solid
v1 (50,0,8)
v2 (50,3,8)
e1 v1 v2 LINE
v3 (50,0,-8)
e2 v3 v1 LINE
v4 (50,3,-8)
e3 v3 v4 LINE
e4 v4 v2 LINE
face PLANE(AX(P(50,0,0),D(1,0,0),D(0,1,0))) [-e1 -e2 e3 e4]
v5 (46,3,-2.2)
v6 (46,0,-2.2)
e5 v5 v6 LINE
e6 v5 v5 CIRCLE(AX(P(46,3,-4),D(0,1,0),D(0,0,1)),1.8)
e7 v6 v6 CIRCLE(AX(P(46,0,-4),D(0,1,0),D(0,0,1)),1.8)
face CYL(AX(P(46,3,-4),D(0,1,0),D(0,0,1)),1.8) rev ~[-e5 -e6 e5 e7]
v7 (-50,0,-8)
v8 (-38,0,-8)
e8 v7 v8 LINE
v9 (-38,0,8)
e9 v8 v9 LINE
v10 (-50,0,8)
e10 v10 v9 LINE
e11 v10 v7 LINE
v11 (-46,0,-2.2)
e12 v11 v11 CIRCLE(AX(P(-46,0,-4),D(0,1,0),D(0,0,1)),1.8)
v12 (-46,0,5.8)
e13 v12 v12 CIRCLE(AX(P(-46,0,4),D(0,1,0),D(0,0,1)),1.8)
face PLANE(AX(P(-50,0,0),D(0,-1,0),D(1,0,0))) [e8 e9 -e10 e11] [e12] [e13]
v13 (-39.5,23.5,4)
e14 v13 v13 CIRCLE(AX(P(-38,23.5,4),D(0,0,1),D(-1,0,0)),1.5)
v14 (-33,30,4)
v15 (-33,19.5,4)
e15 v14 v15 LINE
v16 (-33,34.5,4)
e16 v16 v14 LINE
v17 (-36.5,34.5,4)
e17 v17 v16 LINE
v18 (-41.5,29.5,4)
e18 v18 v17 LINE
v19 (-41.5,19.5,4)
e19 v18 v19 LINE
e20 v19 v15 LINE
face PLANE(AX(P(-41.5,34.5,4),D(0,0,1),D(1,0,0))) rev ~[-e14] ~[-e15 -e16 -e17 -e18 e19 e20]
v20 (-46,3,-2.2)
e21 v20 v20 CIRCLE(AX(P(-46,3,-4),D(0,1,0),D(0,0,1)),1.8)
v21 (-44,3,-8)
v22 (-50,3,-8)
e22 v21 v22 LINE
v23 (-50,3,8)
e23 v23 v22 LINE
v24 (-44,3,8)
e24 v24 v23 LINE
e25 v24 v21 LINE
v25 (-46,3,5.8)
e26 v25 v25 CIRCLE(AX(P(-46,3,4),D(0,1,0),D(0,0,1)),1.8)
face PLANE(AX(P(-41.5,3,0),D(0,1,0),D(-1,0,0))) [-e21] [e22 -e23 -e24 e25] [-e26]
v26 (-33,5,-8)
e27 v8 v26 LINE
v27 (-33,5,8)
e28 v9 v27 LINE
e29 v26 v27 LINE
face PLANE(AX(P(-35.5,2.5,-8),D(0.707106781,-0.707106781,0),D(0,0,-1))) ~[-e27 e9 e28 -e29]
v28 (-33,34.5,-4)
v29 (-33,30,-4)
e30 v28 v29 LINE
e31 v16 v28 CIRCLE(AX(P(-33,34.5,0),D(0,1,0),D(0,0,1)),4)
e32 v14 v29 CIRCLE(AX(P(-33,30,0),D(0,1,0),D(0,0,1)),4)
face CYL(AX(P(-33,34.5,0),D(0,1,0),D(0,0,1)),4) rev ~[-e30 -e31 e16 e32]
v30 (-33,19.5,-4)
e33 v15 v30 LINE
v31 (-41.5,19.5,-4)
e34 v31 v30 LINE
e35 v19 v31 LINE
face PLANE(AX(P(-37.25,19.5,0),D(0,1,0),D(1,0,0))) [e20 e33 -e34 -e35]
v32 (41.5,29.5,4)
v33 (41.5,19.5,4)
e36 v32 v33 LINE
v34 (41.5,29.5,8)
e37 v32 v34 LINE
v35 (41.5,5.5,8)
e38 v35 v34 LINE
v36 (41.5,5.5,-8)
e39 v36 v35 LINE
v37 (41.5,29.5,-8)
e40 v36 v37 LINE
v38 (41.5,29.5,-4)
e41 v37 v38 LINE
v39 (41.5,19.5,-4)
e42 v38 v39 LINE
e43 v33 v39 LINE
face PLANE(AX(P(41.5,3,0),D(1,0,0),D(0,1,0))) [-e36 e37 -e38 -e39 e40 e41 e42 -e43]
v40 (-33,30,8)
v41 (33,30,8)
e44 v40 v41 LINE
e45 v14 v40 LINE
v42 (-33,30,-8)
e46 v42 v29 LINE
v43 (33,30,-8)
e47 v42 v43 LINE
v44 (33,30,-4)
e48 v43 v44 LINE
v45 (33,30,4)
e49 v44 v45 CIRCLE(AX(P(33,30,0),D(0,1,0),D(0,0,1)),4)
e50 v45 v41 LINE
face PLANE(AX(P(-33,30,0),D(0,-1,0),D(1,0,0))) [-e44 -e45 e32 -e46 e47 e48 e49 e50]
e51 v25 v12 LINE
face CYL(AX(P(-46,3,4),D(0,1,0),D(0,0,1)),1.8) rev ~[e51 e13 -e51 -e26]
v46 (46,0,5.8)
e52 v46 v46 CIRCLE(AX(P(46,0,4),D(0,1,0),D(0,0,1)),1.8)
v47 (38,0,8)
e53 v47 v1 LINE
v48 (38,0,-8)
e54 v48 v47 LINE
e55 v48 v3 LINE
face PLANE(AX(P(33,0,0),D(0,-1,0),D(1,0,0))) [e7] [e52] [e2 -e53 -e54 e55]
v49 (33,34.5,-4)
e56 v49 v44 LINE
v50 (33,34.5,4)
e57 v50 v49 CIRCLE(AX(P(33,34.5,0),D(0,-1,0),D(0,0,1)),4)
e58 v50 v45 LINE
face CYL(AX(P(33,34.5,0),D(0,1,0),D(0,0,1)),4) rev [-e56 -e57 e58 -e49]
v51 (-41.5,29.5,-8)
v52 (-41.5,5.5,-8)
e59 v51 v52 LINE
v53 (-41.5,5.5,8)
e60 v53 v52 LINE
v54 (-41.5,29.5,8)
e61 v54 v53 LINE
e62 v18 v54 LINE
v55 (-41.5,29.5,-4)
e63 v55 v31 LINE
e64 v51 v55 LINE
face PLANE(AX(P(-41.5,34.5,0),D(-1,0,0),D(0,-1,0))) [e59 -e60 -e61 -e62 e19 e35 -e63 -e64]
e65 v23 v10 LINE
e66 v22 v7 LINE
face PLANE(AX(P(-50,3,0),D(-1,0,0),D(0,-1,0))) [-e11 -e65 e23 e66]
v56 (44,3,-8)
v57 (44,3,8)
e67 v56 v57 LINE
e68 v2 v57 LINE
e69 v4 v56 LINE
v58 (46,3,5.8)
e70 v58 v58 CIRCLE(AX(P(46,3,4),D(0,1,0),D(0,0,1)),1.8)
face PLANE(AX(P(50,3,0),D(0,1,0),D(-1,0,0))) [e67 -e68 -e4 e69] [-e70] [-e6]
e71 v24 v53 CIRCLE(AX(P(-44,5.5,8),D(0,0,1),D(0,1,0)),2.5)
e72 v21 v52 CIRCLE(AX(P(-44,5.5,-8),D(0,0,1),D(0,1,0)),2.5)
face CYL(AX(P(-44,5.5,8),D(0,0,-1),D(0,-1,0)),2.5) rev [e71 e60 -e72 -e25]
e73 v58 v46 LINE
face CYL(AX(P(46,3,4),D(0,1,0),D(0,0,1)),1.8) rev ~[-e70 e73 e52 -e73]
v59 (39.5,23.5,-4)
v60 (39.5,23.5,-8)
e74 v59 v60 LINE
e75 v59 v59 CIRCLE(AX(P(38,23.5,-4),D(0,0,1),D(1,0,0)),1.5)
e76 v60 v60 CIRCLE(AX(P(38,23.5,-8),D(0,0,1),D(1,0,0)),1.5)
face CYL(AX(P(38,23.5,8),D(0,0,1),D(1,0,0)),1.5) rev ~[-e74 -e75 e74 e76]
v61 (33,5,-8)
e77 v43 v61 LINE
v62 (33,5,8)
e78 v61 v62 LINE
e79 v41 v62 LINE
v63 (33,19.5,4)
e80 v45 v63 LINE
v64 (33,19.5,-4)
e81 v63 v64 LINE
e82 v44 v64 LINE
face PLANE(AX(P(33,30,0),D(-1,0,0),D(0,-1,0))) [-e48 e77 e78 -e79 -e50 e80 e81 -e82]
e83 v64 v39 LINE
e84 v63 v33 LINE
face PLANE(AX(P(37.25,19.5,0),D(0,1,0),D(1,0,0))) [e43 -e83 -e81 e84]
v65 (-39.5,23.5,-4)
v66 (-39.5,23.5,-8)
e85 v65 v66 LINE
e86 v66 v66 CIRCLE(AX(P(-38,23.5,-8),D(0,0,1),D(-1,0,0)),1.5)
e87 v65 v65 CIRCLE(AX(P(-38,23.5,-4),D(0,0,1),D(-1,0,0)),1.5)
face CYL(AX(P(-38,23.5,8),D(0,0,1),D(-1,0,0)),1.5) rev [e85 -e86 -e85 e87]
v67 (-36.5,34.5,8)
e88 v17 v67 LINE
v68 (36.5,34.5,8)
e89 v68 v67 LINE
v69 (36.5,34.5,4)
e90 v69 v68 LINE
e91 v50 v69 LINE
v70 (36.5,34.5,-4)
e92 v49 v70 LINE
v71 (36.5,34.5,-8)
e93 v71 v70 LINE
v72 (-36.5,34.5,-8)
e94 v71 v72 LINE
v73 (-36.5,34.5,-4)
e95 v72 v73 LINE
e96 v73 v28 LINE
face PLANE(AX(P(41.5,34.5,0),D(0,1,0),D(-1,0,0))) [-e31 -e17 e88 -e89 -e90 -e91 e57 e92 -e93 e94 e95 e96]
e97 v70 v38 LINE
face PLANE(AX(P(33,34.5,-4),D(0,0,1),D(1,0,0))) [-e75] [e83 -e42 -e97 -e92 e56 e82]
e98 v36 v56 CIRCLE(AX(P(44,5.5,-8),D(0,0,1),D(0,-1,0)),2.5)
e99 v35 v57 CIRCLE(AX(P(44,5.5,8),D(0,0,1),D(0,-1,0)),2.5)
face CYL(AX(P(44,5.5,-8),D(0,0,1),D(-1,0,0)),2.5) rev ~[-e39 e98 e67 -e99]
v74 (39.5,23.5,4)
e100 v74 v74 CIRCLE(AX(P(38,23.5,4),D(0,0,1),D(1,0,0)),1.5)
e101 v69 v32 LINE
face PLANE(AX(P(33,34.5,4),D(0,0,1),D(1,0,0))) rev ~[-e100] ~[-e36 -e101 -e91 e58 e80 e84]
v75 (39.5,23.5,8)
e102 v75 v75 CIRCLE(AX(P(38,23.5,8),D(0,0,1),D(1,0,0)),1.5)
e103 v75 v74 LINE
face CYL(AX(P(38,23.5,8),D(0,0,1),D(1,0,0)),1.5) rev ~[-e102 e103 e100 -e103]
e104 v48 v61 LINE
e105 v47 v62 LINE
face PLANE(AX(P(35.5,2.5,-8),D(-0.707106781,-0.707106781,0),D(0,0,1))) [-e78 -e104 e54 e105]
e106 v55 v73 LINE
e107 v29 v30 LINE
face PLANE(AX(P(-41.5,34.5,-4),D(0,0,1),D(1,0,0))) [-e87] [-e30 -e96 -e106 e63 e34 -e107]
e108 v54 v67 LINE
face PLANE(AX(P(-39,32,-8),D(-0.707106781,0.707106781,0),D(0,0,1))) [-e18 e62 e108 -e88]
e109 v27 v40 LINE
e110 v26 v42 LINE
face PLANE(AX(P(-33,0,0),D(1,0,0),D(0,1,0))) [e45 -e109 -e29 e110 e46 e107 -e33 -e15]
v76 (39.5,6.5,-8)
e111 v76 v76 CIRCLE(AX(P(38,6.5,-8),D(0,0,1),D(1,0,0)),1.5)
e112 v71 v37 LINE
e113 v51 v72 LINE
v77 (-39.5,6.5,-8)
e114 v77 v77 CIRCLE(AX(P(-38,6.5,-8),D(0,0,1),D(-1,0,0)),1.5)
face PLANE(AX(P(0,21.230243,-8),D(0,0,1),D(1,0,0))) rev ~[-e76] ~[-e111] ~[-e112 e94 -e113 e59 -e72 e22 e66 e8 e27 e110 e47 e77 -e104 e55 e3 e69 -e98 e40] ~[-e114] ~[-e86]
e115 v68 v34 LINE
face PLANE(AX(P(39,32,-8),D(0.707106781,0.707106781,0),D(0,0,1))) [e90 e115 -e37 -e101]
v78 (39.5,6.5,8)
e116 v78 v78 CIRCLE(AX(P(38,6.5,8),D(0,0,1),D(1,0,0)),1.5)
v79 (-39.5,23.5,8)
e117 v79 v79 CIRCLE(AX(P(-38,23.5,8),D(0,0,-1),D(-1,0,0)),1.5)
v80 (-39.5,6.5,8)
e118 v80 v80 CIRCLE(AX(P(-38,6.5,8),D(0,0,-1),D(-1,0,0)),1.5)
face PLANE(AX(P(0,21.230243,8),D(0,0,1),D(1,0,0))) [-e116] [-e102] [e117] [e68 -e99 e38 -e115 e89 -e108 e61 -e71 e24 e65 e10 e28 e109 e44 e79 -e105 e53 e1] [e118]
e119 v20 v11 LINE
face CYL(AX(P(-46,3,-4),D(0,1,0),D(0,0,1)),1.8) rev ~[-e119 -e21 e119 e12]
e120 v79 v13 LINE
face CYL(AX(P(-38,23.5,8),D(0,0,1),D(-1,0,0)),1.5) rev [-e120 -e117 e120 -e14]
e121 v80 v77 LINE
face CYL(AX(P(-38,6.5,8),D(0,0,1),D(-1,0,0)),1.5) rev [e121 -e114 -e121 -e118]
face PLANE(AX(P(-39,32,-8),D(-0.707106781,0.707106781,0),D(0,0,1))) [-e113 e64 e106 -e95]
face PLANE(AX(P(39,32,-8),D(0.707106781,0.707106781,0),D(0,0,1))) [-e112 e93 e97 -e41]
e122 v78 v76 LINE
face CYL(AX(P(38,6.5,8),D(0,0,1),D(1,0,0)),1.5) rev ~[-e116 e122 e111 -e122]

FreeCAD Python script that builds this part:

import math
import FreeCAD as App
import Part
import Sketcher

V = App.Vector
Q = App.Units.Quantity


def edges_at(feature, points):
    """Names of the edges that pass closest to the given points."""
    edges = feature.Shape.Edges
    near = lambda p: min(range(len(edges)), key=lambda i: edges[i].distToShape(Part.Vertex(*p))[0])
    return sorted({f"Edge{near(p) + 1}" for p in points})


def add_polygon(sketch, points):
    """Adds a closed chain of lines whose ends are joined by coincident constraints."""
    first, n = sketch.GeometryCount, len(points)
    for a, b in zip(points, points[1:] + points[:1]):
        sketch.addGeometry(Part.LineSegment(App.Vector(*a, 0), App.Vector(*b, 0)), False)
    for i in range(n):
        sketch.addConstraint(Sketcher.Constraint("Coincident", first + i, 2, first + (i + 1) % n, 1))

doc = App.newDocument("Part")
params = doc.addObject("Spreadsheet::Sheet", "Params")
for row, (alias, value) in enumerate([
    ("sketch1_width", "17 mm"),
    ("sketch1_width2", "66 mm"),
    ("sketch1_width3", "83 mm"),
    ("sketch1_height", "30 mm"),
    ("sketch1_height2", "3 mm"),
    ("pad1_length", "16 mm"),
    ("chamfer_size", "5 mm"),
    ("fillet_radius", "2.5 mm"),
    ("sketch2_diameter", "3 mm"),
    ("sketch3_diameter", "3.6 mm"),
    ("sketch4_height", "8 mm"),
    ("sketch4_width", "8.5 mm"),
    ("pocket3_length", "15 mm"),
    ("sketch5_radius", "4 mm"),
    ("pocket4_length", "15 mm"),
], start=1):
    params.set(f"A{row}", alias)
    params.set(f"B{row}", "=" + value)
    params.setAlias(f"B{row}", alias)

body = doc.addObject("PartDesign::Body", "Body")

# Sketch on XY plane
sketch1 = body.newObject("Sketcher::SketchObject", "Sketch")
sketch1.AttachmentSupport = (doc.getObject("XY_Plane"), [""])
sketch1.MapMode = "FlatFace"
add_polygon(sketch1, [(-50, 0), (-33, 0), (-33, 30), (33, 30), (33, 0), (50, 0), (50, 3), (41.5, 3), (41.5, 34.5), (-41.5, 34.5), (-41.5, 3), (-50, 3)])  # lines 0-11
sketch1.addConstraint([
    Sketcher.Constraint("Horizontal", 0),
    Sketcher.Constraint("Vertical", 1),
    Sketcher.Constraint("Horizontal", 2),
    Sketcher.Constraint("Vertical", 3),
    Sketcher.Constraint("Horizontal", 4),
    Sketcher.Constraint("Vertical", 5),
    Sketcher.Constraint("Horizontal", 6),
    Sketcher.Constraint("Vertical", 7),
    Sketcher.Constraint("Horizontal", 8),
    Sketcher.Constraint("Vertical", 9),
    Sketcher.Constraint("Horizontal", 10),
    Sketcher.Constraint("Vertical", 11),
    Sketcher.Constraint("Symmetric", 0, 2, 3, 2, -1, 1),
    Sketcher.Constraint("Symmetric", 6, 2, 9, 2, -2),
    Sketcher.Constraint("Symmetric", 4, 2, 11, 2, -2),
    Sketcher.Constraint("DistanceX", 0, 1, 0, 2, Q("17 mm")),
    Sketcher.Constraint("DistanceX", 2, 1, 2, 2, Q("66 mm")),
    Sketcher.Constraint("DistanceX", 8, 2, 8, 1, Q("83 mm")),
    Sketcher.Constraint("DistanceY", 1, 1, 1, 2, Q("30 mm")),
    Sketcher.Constraint("DistanceY", 5, 1, 5, 2, Q("3 mm")),
    Sketcher.Constraint("DistanceY", 7, 1, 7, 2, Q("31.5 mm")),
])
sketch1.setExpression("Constraints[27]", "Params.sketch1_width")
sketch1.setExpression("Constraints[28]", "Params.sketch1_width2")
sketch1.setExpression("Constraints[29]", "Params.sketch1_width3")
sketch1.setExpression("Constraints[30]", "Params.sketch1_height")
sketch1.setExpression("Constraints[31]", "Params.sketch1_height2")
pad1 = body.newObject("PartDesign::Pad", "Pad")
pad1.Profile = sketch1
pad1.setExpression("Length", "Params.pad1_length")
pad1.Midplane = True
doc.recompute()

chamfer = body.newObject("PartDesign::Chamfer", "Chamfer")
chamfer.Base = (pad1, edges_at(pad1, [
    (-41.5, 34.5, 0),
    (41.5, 34.5, 0),
    (33, 0, 0),
    (-33, 0, 0),
]))
chamfer.setExpression("Size", "Params.chamfer_size")
doc.recompute()

fillet = body.newObject("PartDesign::Fillet", "Fillet")
fillet.Base = (chamfer, edges_at(chamfer, [(-41.5, 3, 0), (41.5, 3, 0)]))
fillet.setExpression("Radius", "Params.fillet_radius")

# Sketch on XY plane
sketch2 = body.newObject("Sketcher::SketchObject", "Sketch001")
sketch2.AttachmentSupport = (doc.getObject("XY_Plane"), [""])
sketch2.MapMode = "FlatFace"
sketch2.AttachmentOffset = App.Placement(V(0, 0, 8), App.Rotation())
sketch2.addGeometry([
    Part.Circle(V(38, 23.5, 0), V(0, 0, 1), 1.5),
    Part.Circle(V(38, 6.5, 0), V(0, 0, 1), 1.5),
], False)
sketch2.addConstraint([
    Sketcher.Constraint("Equal", 0, 1),
    Sketcher.Constraint("Vertical", 0, 3, 1, 3),
    Sketcher.Constraint("Diameter", 0, Q("3 mm")),
    Sketcher.Constraint("DistanceX", -1, 1, 0, 3, Q("38 mm")),
    Sketcher.Constraint("DistanceY", 1, 3, 0, 3, Q("17 mm")),
    Sketcher.Constraint("DistanceY", -1, 1, 0, 3, Q("23.5 mm")),
])
sketch2.setExpression("Constraints[2]", "Params.sketch2_diameter")
pocket1 = body.newObject("PartDesign::Pocket", "Pocket")
pocket1.Profile = sketch2
pocket1.Type = "ThroughAll"
doc.recompute()

mirrored = body.newObject("PartDesign::Mirrored", "Mirrored")
mirrored.Originals = [pocket1]
mirrored.MirrorPlane = (doc.getObject("YZ_Plane"), [""])
body.Tip = mirrored

# Sketch on XZ plane
sketch3 = body.newObject("Sketcher::SketchObject", "Sketch002")
sketch3.AttachmentSupport = (doc.getObject("XZ_Plane"), [""])
sketch3.MapMode = "FlatFace"
sketch3.AttachmentOffset = App.Placement(V(0, 0, -3), App.Rotation())
sketch3.addGeometry([
    Part.Circle(V(46, -4, 0), V(0, 0, 1), 1.8),
    Part.Circle(V(46, 4, 0), V(0, 0, 1), 1.8),
    Part.Circle(V(-46, -4, 0), V(0, 0, 1), 1.8),
    Part.Circle(V(-46, 4, 0), V(0, 0, 1), 1.8),
], False)
sketch3.addConstraint([
    Sketcher.Constraint("Equal", 0, 1),
    Sketcher.Constraint("Equal", 1, 2),
    Sketcher.Constraint("Equal", 2, 3),
    Sketcher.Constraint("Symmetric", 1, 3, 2, 3, -1, 1),
    Sketcher.Constraint("Symmetric", 0, 3, 3, 3, -1, 1),
    Sketcher.Constraint("Symmetric", 0, 3, 2, 3, -2),
    Sketcher.Constraint("Diameter", 0, Q("3.6 mm")),
    Sketcher.Constraint("DistanceX", -1, 1, 0, 3, Q("46 mm")),
    Sketcher.Constraint("DistanceY", 0, 3, -1, 1, Q("4 mm")),
])
sketch3.setExpression("Constraints[6]", "Params.sketch3_diameter")
pocket2 = body.newObject("PartDesign::Pocket", "Pocket001")
pocket2.Profile = sketch3
pocket2.Type = "ThroughAll"
pocket2.Reversed = True

# Sketch on XZ plane
sketch4 = body.newObject("Sketcher::SketchObject", "Sketch003")
sketch4.AttachmentSupport = (doc.getObject("XZ_Plane"), [""])
sketch4.MapMode = "FlatFace"
sketch4.AttachmentOffset = App.Placement(V(0, 0, -34.5), App.Rotation())
add_polygon(sketch4, [(33, -4), (33, 4), (42, 4), (42, -4)])  # lines 0-3
add_polygon(sketch4, [(-42, -4), (-42, 4), (-33, 4), (-33, -4)])  # lines 4-7
sketch4.addConstraint([
    Sketcher.Constraint("Vertical", 0),
    Sketcher.Constraint("Horizontal", 1),
    Sketcher.Constraint("Vertical", 2),
    Sketcher.Constraint("Horizontal", 3),
    Sketcher.Constraint("Vertical", 4),
    Sketcher.Constraint("Horizontal", 5),
    Sketcher.Constraint("Vertical", 6),
    Sketcher.Constraint("Horizontal", 7),
    Sketcher.Constraint("Symmetric", 2, 2, 4, 2, -1, 1),
    Sketcher.Constraint("Symmetric", 0, 2, 6, 2, -1, 1),
    Sketcher.Constraint("Horizontal", 1, 2, 4, 2),
    Sketcher.Constraint("DistanceY", 0, 1, 0, 2, Q("8 mm")),
    Sketcher.Constraint("DistanceX", 1, 1, 1, 2, Q("8.5 mm")),
    Sketcher.Constraint("DistanceX", -1, 1, 0, 2, Q("33 mm")),
])
sketch4.setExpression("Constraints[19]", "Params.sketch4_height")
sketch4.setExpression("Constraints[20]", "Params.sketch4_width")
pocket3 = body.newObject("PartDesign::Pocket", "Pocket002")
pocket3.Profile = sketch4
pocket3.setExpression("Length", "Params.pocket3_length")
pocket3.Reversed = True

# Sketch on XZ plane
sketch5 = body.newObject("Sketcher::SketchObject", "Sketch004")
sketch5.AttachmentSupport = (doc.getObject("XZ_Plane"), [""])
sketch5.MapMode = "FlatFace"
sketch5.AttachmentOffset = App.Placement(V(0, 0, -34.5), App.Rotation())
sketch5.addGeometry([
    Part.LineSegment(V(33, 4, 0), V(33, -4, 0)),
    Part.ArcOfCircle(Part.Circle(V(33, 0, 0), V(0, 0, 1), 4), math.radians(90), math.radians(270)),
    Part.LineSegment(V(-33, -4, 0), V(-33, 4, 0)),
    Part.ArcOfCircle(Part.Circle(V(-33, 0, 0), V(0, 0, 1), 4), math.radians(-90), math.radians(90)),
], False)
sketch5.addConstraint([
    Sketcher.Constraint("Coincident", 0, 1, 1, 1),
    Sketcher.Constraint("Coincident", 1, 2, 0, 2),
    Sketcher.Constraint("Coincident", 2, 1, 3, 1),
    Sketcher.Constraint("Coincident", 3, 2, 2, 2),
    Sketcher.Constraint("Vertical", 0),
    Sketcher.Constraint("Vertical", 2),
    Sketcher.Constraint("Equal", 1, 3),
    Sketcher.Constraint("Symmetric", 1, 3, 3, 3, -1, 1),
    Sketcher.Constraint("Symmetric", 1, 2, 2, 1, -2),
    Sketcher.Constraint("Vertical", 1, 3, 0, 1),
    Sketcher.Constraint("Radius", 1, Q("4 mm")),
    Sketcher.Constraint("DistanceX", -1, 1, 1, 3, Q("33 mm")),
])
sketch5.setExpression("Constraints[10]", "Params.sketch5_radius")
pocket4 = body.newObject("PartDesign::Pocket", "Pocket003")
pocket4.Profile = sketch5
pocket4.setExpression("Length", "Params.pocket4_length")
pocket4.Reversed = True

doc.recompute()
